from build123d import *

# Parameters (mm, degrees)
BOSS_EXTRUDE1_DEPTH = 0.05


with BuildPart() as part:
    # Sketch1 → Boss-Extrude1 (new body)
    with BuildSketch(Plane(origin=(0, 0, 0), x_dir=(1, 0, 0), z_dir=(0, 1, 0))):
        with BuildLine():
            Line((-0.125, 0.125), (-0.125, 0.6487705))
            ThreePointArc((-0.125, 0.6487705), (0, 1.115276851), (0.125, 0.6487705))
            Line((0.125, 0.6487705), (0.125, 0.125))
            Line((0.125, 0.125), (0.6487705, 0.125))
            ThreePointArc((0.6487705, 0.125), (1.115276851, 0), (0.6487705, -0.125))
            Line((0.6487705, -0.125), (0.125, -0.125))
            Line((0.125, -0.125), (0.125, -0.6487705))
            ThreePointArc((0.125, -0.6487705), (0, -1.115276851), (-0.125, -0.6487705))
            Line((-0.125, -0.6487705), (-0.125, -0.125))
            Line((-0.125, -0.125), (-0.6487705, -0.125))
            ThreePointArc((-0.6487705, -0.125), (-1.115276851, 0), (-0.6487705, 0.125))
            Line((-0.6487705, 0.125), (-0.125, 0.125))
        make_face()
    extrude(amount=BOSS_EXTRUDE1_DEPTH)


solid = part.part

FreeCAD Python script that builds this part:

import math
import FreeCAD as App
import Part
import Sketcher

V = App.Vector
Q = App.Units.Quantity

doc = App.newDocument("Part")
params = doc.addObject("Spreadsheet::Sheet", "Params")
for row, (alias, value) in enumerate([
    ("sketch1_radius", "0.25 mm"),
    ("pad1_length", "0.05 mm"),
], start=1):
    params.set(f"A{row}", alias)
    params.set(f"B{row}", "=" + value)
    params.setAlias(f"B{row}", alias)

body = doc.addObject("PartDesign::Body", "Body")

# Sketch on XZ plane
sketch1 = doc.addObject("Sketcher::SketchObject", "Sketch")
body.addObject(sketch1)
sketch1.AttachmentSupport = (doc.XZ_Plane, [""])
sketch1.MapMode = "FlatFace"
sketch1.addGeometry(Part.LineSegment(V(-0.12, -0.65, 0), V(-0.12, -0.12, 0)), False)
sketch1.addGeometry(Part.LineSegment(V(-0.12, -0.12, 0), V(-0.65, -0.12, 0)), False)
sketch1.addGeometry(Part.ArcOfCircle(Part.Circle(V(-0.87, 0, 0), V(0, 0, 1), 0.25), math.radians(30), math.radians(330)), False)
sketch1.addGeometry(Part.LineSegment(V(-0.65, 0.12, 0), V(-0.12, 0.12, 0)), False)
sketch1.addGeometry(Part.LineSegment(V(-0.12, 0.12, 0), V(-0.12, 0.65, 0)), False)
sketch1.addGeometry(Part.ArcOfCircle(Part.Circle(V(0, 0.87, 0), V(0, 0, 1), 0.25), math.radians(-60), math.radians(240)), False)
sketch1.addGeometry(Part.LineSegment(V(0.12, 0.65, 0), V(0.12, 0.12, 0)), False)
sketch1.addGeometry(Part.LineSegment(V(0.12, 0.12, 0), V(0.65, 0.12, 0)), False)
sketch1.addGeometry(Part.ArcOfCircle(Part.Circle(V(0.87, 0, 0), V(0, 0, 1), 0.25), math.radians(-150), math.radians(150)), False)
sketch1.addGeometry(Part.LineSegment(V(0.65, -0.12, 0), V(0.12, -0.12, 0)), False)
sketch1.addGeometry(Part.LineSegment(V(0.12, -0.12, 0), V(0.12, -0.65, 0)), False)
sketch1.addGeometry(Part.ArcOfCircle(Part.Circle(V(0, -0.87, 0), V(0, 0, 1), 0.25), math.radians(120), math.radians(420)), False)
sketch1.addConstraint(Sketcher.Constraint("Coincident", 0, 2, 1, 1))
sketch1.addConstraint(Sketcher.Constraint("Coincident", 1, 2, 2, 2))
sketch1.addConstraint(Sketcher.Constraint("Coincident", 2, 1, 3, 1))
sketch1.addConstraint(Sketcher.Constraint("Coincident", 3, 2, 4, 1))
sketch1.addConstraint(Sketcher.Constraint("Coincident", 4, 2, 5, 2))
sketch1.addConstraint(Sketcher.Constraint("Coincident", 5, 1, 6, 1))
sketch1.addConstraint(Sketcher.Constraint("Coincident", 6, 2, 7, 1))
sketch1.addConstraint(Sketcher.Constraint("Coincident", 7, 2, 8, 2))
sketch1.addConstraint(Sketcher.Constraint("Coincident", 8, 1, 9, 1))
sketch1.addConstraint(Sketcher.Constraint("Coincident", 9, 2, 10, 1))
sketch1.addConstraint(Sketcher.Constraint("Coincident", 10, 2, 11, 2))
sketch1.addConstraint(Sketcher.Constraint("Coincident", 11, 1, 0, 1))
sketch1.addConstraint(Sketcher.Constraint("Vertical", 0))
sketch1.addConstraint(Sketcher.Constraint("Horizontal", 1))
sketch1.addConstraint(Sketcher.Constraint("Horizontal", 3))
sketch1.addConstraint(Sketcher.Constraint("Vertical", 4))
sketch1.addConstraint(Sketcher.Constraint("Vertical", 6))
sketch1.addConstraint(Sketcher.Constraint("Horizontal", 7))
sketch1.addConstraint(Sketcher.Constraint("Horizontal", 9))
sketch1.addConstraint(Sketcher.Constraint("Vertical", 10))
sketch1.addConstraint(Sketcher.Constraint("Equal", 2, 5))
sketch1.addConstraint(Sketcher.Constraint("Equal", 5, 8))
sketch1.addConstraint(Sketcher.Constraint("Equal", 8, 11))
sketch1.addConstraint(Sketcher.Constraint("Symmetric", 2, 3, 8, 3, -1, 1))
sketch1.addConstraint(Sketcher.Constraint("Symmetric", 5, 3, 11, 3, -1, 1))
sketch1.addConstraint(Sketcher.Constraint("Symmetric", 0, 2, 6, 2, -1, 1))
sketch1.addConstraint(Sketcher.Constraint("Symmetric", 3, 2, 9, 2, -1, 1))
sketch1.addConstraint(Sketcher.Constraint("Symmetric", 4, 2, 5, 1, -2))
sketch1.addConstraint(Sketcher.Constraint("Symmetric", 2, 1, 7, 2, -2))
sketch1.addConstraint(Sketcher.Constraint("Equal", 9, 0))
sketch1.addConstraint(Sketcher.Constraint("Radius", 2, Q("0.25 mm")))
sketch1.addConstraint(Sketcher.Constraint("DistanceY", 1, 2, 2, 1, Q("0.25 mm")))
sketch1.addConstraint(Sketcher.Constraint("DistanceX", 4, 2, 5, 1, Q("0.25 mm")))
sketch1.addConstraint(Sketcher.Constraint("DistanceX", 1, 2, 1, 1, Q("0.523771 mm")))
sketch1.setExpression("Constraints[30]", "Params.sketch1_radius")
pad1 = doc.addObject("PartDesign::Pad", "Pad")
body.addObject(pad1)
pad1.Profile = sketch1
pad1.setExpression("Length", "Params.pad1_length")
pad1.Reversed = True

doc.recompute()
